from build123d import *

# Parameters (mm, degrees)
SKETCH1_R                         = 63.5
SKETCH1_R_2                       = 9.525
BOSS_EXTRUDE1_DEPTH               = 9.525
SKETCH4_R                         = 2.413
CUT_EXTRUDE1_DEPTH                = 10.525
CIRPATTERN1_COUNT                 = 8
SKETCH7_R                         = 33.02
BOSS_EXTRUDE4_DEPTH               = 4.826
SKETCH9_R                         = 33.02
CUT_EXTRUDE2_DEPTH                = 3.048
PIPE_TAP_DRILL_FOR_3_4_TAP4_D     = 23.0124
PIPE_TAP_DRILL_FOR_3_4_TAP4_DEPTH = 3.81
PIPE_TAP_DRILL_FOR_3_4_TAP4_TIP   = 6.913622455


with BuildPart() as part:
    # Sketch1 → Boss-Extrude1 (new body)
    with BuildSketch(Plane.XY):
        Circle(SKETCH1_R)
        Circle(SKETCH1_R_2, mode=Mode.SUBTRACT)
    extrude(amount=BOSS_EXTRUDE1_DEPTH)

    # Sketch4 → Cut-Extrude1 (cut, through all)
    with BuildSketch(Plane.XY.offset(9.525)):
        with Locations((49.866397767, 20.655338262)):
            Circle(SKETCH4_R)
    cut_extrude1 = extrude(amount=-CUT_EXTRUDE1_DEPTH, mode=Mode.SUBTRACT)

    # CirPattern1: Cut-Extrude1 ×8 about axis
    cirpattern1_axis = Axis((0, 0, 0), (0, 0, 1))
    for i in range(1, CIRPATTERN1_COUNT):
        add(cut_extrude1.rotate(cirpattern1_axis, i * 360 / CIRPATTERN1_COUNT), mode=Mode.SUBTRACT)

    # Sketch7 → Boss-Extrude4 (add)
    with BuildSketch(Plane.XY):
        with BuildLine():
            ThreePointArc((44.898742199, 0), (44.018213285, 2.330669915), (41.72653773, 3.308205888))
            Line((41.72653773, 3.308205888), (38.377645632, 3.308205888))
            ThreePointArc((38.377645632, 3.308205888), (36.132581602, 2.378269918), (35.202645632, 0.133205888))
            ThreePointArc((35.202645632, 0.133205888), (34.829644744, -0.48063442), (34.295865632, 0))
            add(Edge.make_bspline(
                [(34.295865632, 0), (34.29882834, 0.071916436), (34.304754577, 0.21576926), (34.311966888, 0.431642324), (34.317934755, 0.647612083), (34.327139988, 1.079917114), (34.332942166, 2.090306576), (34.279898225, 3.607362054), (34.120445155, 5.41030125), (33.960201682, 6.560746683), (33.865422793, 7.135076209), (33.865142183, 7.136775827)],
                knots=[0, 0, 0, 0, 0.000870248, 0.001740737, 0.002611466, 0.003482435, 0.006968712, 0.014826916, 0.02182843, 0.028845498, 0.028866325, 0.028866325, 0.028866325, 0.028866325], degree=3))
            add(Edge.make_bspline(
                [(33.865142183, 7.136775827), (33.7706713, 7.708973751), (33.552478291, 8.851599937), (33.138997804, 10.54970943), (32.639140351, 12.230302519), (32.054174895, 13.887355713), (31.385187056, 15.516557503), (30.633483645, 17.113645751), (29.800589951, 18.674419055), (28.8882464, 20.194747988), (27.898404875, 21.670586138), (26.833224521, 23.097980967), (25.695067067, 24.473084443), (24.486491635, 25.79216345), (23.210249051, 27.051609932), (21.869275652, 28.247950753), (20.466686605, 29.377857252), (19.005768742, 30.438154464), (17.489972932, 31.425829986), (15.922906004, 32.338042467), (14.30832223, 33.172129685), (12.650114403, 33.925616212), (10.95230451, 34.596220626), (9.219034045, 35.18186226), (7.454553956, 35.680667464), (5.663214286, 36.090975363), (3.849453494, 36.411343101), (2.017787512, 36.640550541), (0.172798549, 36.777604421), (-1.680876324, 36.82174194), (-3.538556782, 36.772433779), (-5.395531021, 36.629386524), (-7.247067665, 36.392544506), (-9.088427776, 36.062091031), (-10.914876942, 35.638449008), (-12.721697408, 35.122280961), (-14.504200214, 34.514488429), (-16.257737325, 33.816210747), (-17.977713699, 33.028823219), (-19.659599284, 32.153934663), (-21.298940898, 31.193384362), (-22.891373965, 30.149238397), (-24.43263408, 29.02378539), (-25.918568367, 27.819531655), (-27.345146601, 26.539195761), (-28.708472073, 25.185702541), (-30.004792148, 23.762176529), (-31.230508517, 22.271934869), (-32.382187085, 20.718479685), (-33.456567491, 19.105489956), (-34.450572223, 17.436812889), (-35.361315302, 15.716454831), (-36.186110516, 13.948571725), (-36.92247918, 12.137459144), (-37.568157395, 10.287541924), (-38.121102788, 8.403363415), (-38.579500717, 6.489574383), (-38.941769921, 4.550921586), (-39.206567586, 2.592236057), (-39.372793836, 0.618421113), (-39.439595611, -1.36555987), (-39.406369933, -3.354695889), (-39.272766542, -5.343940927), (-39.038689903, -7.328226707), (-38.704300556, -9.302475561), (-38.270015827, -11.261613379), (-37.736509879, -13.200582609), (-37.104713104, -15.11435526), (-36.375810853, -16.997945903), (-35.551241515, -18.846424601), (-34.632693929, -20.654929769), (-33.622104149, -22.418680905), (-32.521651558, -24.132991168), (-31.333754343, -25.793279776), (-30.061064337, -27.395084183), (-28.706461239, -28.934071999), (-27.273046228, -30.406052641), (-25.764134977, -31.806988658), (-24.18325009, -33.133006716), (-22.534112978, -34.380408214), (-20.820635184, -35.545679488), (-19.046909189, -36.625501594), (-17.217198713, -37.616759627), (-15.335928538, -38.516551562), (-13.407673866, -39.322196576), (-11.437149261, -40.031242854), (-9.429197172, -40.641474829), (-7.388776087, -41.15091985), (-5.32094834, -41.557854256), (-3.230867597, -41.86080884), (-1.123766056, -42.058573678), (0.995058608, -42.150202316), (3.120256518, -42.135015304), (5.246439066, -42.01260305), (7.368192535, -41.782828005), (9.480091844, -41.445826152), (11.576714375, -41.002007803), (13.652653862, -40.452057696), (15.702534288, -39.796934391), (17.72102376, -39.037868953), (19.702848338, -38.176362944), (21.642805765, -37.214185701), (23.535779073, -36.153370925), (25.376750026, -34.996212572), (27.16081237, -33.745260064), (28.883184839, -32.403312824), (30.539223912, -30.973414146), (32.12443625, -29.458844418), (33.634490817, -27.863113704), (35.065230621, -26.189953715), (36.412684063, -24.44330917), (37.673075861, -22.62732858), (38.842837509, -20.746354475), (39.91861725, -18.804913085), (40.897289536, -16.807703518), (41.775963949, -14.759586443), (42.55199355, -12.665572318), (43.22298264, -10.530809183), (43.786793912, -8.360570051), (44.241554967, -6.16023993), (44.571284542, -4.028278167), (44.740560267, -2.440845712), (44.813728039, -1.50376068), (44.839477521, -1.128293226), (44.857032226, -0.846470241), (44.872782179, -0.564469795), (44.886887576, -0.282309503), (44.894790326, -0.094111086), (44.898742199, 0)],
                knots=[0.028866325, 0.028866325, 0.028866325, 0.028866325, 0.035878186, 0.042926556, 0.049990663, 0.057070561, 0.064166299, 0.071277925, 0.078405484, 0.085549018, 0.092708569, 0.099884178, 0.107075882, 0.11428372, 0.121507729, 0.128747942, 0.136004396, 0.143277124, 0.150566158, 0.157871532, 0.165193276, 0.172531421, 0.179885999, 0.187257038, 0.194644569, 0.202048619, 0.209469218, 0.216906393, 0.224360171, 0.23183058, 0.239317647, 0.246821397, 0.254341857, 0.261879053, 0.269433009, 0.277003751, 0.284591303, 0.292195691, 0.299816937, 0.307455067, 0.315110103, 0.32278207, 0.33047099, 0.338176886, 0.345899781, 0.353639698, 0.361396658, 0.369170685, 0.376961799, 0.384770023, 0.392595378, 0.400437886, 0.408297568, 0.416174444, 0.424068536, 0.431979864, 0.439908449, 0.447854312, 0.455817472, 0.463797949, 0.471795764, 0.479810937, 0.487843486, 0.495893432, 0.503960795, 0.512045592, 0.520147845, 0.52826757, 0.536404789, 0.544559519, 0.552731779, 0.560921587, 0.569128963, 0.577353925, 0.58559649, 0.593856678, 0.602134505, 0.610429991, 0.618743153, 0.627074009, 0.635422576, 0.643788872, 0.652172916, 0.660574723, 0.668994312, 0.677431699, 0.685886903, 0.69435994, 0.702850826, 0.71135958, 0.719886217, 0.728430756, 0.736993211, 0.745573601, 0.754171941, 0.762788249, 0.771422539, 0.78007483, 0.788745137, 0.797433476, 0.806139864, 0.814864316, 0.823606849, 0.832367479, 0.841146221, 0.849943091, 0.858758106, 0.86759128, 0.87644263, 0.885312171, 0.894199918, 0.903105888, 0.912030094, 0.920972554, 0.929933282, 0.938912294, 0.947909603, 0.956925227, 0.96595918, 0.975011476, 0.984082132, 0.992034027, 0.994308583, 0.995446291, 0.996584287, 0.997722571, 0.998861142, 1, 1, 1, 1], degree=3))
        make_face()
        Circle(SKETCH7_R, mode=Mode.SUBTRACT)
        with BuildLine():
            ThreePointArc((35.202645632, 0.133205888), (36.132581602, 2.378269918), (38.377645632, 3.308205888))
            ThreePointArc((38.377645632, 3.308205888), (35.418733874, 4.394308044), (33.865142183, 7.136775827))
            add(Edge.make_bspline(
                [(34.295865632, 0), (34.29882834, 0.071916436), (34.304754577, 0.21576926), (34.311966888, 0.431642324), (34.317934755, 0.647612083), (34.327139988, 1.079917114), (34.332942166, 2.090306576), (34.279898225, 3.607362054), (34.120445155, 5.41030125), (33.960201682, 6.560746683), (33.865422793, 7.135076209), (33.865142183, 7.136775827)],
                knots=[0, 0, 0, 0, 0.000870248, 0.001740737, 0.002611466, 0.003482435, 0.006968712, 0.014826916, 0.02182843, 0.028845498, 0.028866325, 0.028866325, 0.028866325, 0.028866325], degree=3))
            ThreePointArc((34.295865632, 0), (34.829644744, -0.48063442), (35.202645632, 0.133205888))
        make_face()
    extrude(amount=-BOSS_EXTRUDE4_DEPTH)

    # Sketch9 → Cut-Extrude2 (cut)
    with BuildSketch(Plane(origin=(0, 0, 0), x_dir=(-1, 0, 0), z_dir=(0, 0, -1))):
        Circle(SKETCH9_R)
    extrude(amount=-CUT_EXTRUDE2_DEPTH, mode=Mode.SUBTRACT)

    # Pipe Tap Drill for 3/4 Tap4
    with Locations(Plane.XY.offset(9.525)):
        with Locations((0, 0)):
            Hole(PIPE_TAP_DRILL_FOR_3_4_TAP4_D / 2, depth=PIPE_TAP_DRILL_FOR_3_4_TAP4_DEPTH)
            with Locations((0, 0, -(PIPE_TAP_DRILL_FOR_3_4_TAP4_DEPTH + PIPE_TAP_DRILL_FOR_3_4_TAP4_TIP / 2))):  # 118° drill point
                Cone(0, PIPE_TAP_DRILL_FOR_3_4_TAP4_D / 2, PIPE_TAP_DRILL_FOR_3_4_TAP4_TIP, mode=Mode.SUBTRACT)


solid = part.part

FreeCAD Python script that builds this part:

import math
import FreeCAD as App
import Part
import Sketcher
from FreeCAD import Vector
Q = App.Units.Quantity

doc = App.newDocument("Part")
body = doc.addObject("PartDesign::Body", "Body")

# Sketch on XY plane
sketch1 = body.newObject("Sketcher::SketchObject", "Sketch")
sketch1.AttachmentSupport = (doc.getObject("XY_Plane"), [""])
sketch1.MapMode = "FlatFace"
sketch1.addGeometry([
    Part.Circle(Vector(0, 0, 0), Vector(0, 0, 1), 64),
    Part.Circle(Vector(0, 0, 0), Vector(0, 0, 1), 10),
], False)
sketch1.addConstraint([
    Sketcher.Constraint("Coincident", 0, 3, -1, 1),
    Sketcher.Constraint("Coincident", 1, 3, -1, 1),
    Sketcher.Constraint("Diameter", 0, Q("5 in")),
    Sketcher.Constraint("Diameter", 1, Q("0.75 in")),
])
pad1 = body.newObject("PartDesign::Pad", "Pad")
pad1.Profile = sketch1
pad1.Length = Q("0.375 in")

# Sketch on XY plane
sketch2 = body.newObject("Sketcher::SketchObject", "Sketch001")
sketch2.AttachmentSupport = (doc.getObject("XY_Plane"), [""])
sketch2.MapMode = "FlatFace"
sketch2.AttachmentOffset = App.Placement(Vector(0, 0, 0.375 * 25.4), App.Rotation())
sketch2.addGeometry(Part.Circle(Vector(49.9, 20.7, 0), Vector(0, 0, 1), 2.4), False)
sketch2.addConstraint([
    Sketcher.Constraint("Diameter", 0, Q("0.19 in")),
    Sketcher.Constraint("DistanceY", -1, 1, 0, 3, Q("20.655338 mm")),
    Sketcher.Constraint("DistanceX", -1, 1, 0, 3, Q("49.866398 mm")),
])
pocket1 = body.newObject("PartDesign::Pocket", "Pocket")
pocket1.Profile = sketch2
pocket1.Type = "ThroughAll"
doc.recompute()

polarpattern = body.newObject("PartDesign::PolarPattern", "PolarPattern")
polarpattern.Originals = [pocket1]
polarpattern.Axis = (doc.getObject("Z_Axis"), [""])
polarpattern.Angle = 360
polarpattern.Occurrences = 8
body.Tip = polarpattern

# Sketch on XY plane
sketch3 = body.newObject("Sketcher::SketchObject", "Sketch002")
sketch3.AttachmentSupport = (doc.getObject("XY_Plane"), [""])
sketch3.MapMode = "FlatFace"
sketch3.addGeometry([
    Part.ArcOfCircle(Part.Circle(Vector(41.726538, 0.133206, 0), Vector(0, 0, 1), 3.175), math.radians(-2.404528), math.radians(90)),  # 0
    Part.LineSegment(Vector(41.726538, 3.308206, 0), Vector(38.377646, 3.308206, 0)),  # 1
    Part.ArcOfCircle(Part.Circle(Vector(38.377646, 7.881798, 0), Vector(0, 0, 1), 4.573592), math.radians(-170.624939), math.radians(-90)),  # 2
    Part.BSplineCurve([Vector(33.865142, 7.136776, 0), Vector(33.770671, 7.708974, 0), Vector(33.552478, 8.8516, 0), Vector(33.138998, 10.549709, 0), Vector(32.63914, 12.230303, 0), Vector(32.054175, 13.887356, 0), Vector(31.385187, 15.516558, 0), Vector(30.633484, 17.113646, 0), Vector(29.80059, 18.674419, 0), Vector(28.888246, 20.194748, 0), Vector(27.898405, 21.670586, 0), Vector(26.833225, 23.097981, 0), Vector(25.695067, 24.473084, 0), Vector(24.486492, 25.792163, 0), Vector(23.210249, 27.05161, 0), Vector(21.869276, 28.247951, 0), Vector(20.466687, 29.377857, 0), Vector(19.005769, 30.438154, 0), Vector(17.489973, 31.42583, 0), Vector(15.922906, 32.338042, 0), Vector(14.308322, 33.17213, 0), Vector(12.650114, 33.925616, 0), Vector(10.952305, 34.596221, 0), Vector(9.219034, 35.181862, 0), Vector(7.454554, 35.680667, 0), Vector(5.663214, 36.090975, 0), Vector(3.849453, 36.411343, 0), Vector(2.017788, 36.640551, 0), Vector(0.172799, 36.777604, 0), Vector(-1.680876, 36.821742, 0), Vector(-3.538557, 36.772434, 0), Vector(-5.395531, 36.629387, 0), Vector(-7.247068, 36.392545, 0), Vector(-9.088428, 36.062091, 0), Vector(-10.914877, 35.638449, 0), Vector(-12.721697, 35.122281, 0), Vector(-14.5042, 34.514488, 0), Vector(-16.257737, 33.816211, 0), Vector(-17.977714, 33.028823, 0), Vector(-19.659599, 32.153935, 0), Vector(-21.298941, 31.193384, 0), Vector(-22.891374, 30.149238, 0), Vector(-24.432634, 29.023785, 0), Vector(-25.918568, 27.819532, 0), Vector(-27.345147, 26.539196, 0), Vector(-28.708472, 25.185703, 0), Vector(-30.004792, 23.762177, 0), Vector(-31.230509, 22.271935, 0), Vector(-32.382187, 20.71848, 0), Vector(-33.456567, 19.10549, 0), Vector(-34.450572, 17.436813, 0), Vector(-35.361315, 15.716455, 0), Vector(-36.186111, 13.948572, 0), Vector(-36.922479, 12.137459, 0), Vector(-37.568157, 10.287542, 0), Vector(-38.121103, 8.403363, 0), Vector(-38.579501, 6.489574, 0), Vector(-38.94177, 4.550922, 0), Vector(-39.206568, 2.592236, 0), Vector(-39.372794, 0.618421, 0), Vector(-39.439596, -1.36556, 0), Vector(-39.40637, -3.354696, 0), Vector(-39.272767, -5.343941, 0), Vector(-39.03869, -7.328227, 0), Vector(-38.704301, -9.302476, 0), Vector(-38.270016, -11.261613, 0), Vector(-37.73651, -13.200583, 0), Vector(-37.104713, -15.114355, 0), Vector(-36.375811, -16.997946, 0), Vector(-35.551242, -18.846425, 0), Vector(-34.632694, -20.65493, 0), Vector(-33.622104, -22.418681, 0), Vector(-32.521652, -24.132991, 0), Vector(-31.333754, -25.79328, 0), Vector(-30.061064, -27.395084, 0), Vector(-28.706461, -28.934072, 0), Vector(-27.273046, -30.406053, 0), Vector(-25.764135, -31.806989, 0), Vector(-24.18325, -33.133007, 0), Vector(-22.534113, -34.380408, 0), Vector(-20.820635, -35.545679, 0), Vector(-19.046909, -36.625502, 0), Vector(-17.217199, -37.61676, 0), Vector(-15.335929, -38.516552, 0), Vector(-13.407674, -39.322197, 0), Vector(-11.437149, -40.031243, 0), Vector(-9.429197, -40.641475, 0), Vector(-7.388776, -41.15092, 0), Vector(-5.320948, -41.557854, 0), Vector(-3.230868, -41.860809, 0), Vector(-1.123766, -42.058574, 0), Vector(0.995059, -42.150202, 0), Vector(3.120257, -42.135015, 0), Vector(5.246439, -42.012603, 0), Vector(7.368193, -41.782828, 0), Vector(9.480092, -41.445826, 0), Vector(11.576714, -41.002008, 0), Vector(13.652654, -40.452058, 0), Vector(15.702534, -39.796934, 0), Vector(17.721024, -39.037869, 0), Vector(19.702848, -38.176363, 0), Vector(21.642806, -37.214186, 0), Vector(23.535779, -36.153371, 0), Vector(25.37675, -34.996213, 0), Vector(27.160812, -33.74526, 0), Vector(28.883185, -32.403313, 0), Vector(30.539224, -30.973414, 0), Vector(32.124436, -29.458844, 0), Vector(33.634491, -27.863114, 0), Vector(35.065231, -26.189954, 0), Vector(36.412684, -24.443309, 0), Vector(37.673076, -22.627329, 0), Vector(38.842838, -20.746354, 0), Vector(39.918617, -18.804913, 0), Vector(40.89729, -16.807704, 0), Vector(41.775964, -14.759586, 0), Vector(42.551994, -12.665572, 0), Vector(43.222983, -10.530809, 0), Vector(43.786794, -8.36057, 0), Vector(44.241555, -6.16024, 0), Vector(44.571285, -4.028278, 0), Vector(44.74056, -2.440846, 0), Vector(44.813728, -1.503761, 0), Vector(44.839478, -1.128293, 0), Vector(44.857032, -0.84647, 0), Vector(44.872782, -0.56447, 0), Vector(44.886888, -0.28231, 0), Vector(44.89479, -0.094111, 0), Vector(44.898742, 0, 0)], [4, 1, 1, 1, 1, 1, 1, 1, 1, 1, 1, 1, 1, 1, 1, 1, 1, 1, 1, 1, 1, 1, 1, 1, 1, 1, 1, 1, 1, 1, 1, 1, 1, 1, 1, 1, 1, 1, 1, 1, 1, 1, 1, 1, 1, 1, 1, 1, 1, 1, 1, 1, 1, 1, 1, 1, 1, 1, 1, 1, 1, 1, 1, 1, 1, 1, 1, 1, 1, 1, 1, 1, 1, 1, 1, 1, 1, 1, 1, 1, 1, 1, 1, 1, 1, 1, 1, 1, 1, 1, 1, 1, 1, 1, 1, 1, 1, 1, 1, 1, 1, 1, 1, 1, 1, 1, 1, 1, 1, 1, 1, 1, 1, 1, 1, 1, 1, 1, 1, 1, 1, 1, 1, 1, 1, 1, 4], [0.028866325, 0.035878186, 0.042926556, 0.049990663, 0.057070561, 0.064166299, 0.071277925, 0.078405484, 0.085549018, 0.092708569, 0.099884178, 0.107075882, 0.11428372, 0.121507729, 0.128747942, 0.136004396, 0.143277124, 0.150566158, 0.157871532, 0.165193276, 0.172531421, 0.179885999, 0.187257038, 0.194644569, 0.202048619, 0.209469218, 0.216906393, 0.224360171, 0.23183058, 0.239317647, 0.246821397, 0.254341857, 0.261879053, 0.269433009, 0.277003751, 0.284591303, 0.292195691, 0.299816937, 0.307455067, 0.315110103, 0.32278207, 0.33047099, 0.338176886, 0.345899781, 0.353639698, 0.361396658, 0.369170685, 0.376961799, 0.384770023, 0.392595378, 0.400437886, 0.408297568, 0.416174444, 0.424068536, 0.431979864, 0.439908449, 0.447854312, 0.455817472, 0.463797949, 0.471795764, 0.479810937, 0.487843486, 0.495893432, 0.503960795, 0.512045592, 0.520147845, 0.52826757, 0.536404789, 0.544559519, 0.552731779, 0.560921587, 0.569128963, 0.577353925, 0.58559649, 0.593856678, 0.602134505, 0.610429991, 0.618743153, 0.627074009, 0.635422576, 0.643788872, 0.652172916, 0.660574723, 0.668994312, 0.677431699, 0.685886903, 0.69435994, 0.702850826, 0.71135958, 0.719886217, 0.728430756, 0.736993211, 0.745573601, 0.754171941, 0.762788249, 0.771422539, 0.78007483, 0.788745137, 0.797433476, 0.806139864, 0.814864316, 0.823606849, 0.832367479, 0.841146221, 0.849943091, 0.858758106, 0.86759128, 0.87644263, 0.885312171, 0.894199918, 0.903105888, 0.912030094, 0.920972554, 0.929933282, 0.938912294, 0.947909603, 0.956925227, 0.96595918, 0.975011476, 0.984082132, 0.992034027, 0.994308583, 0.995446291, 0.996584287, 0.997722571, 0.998861142, 1], False, 3, [1, 1, 1, 1, 1, 1, 1, 1, 1, 1, 1, 1, 1, 1, 1, 1, 1, 1, 1, 1, 1, 1, 1, 1, 1, 1, 1, 1, 1, 1, 1, 1, 1, 1, 1, 1, 1, 1, 1, 1, 1, 1, 1, 1, 1, 1, 1, 1, 1, 1, 1, 1, 1, 1, 1, 1, 1, 1, 1, 1, 1, 1, 1, 1, 1, 1, 1, 1, 1, 1, 1, 1, 1, 1, 1, 1, 1, 1, 1, 1, 1, 1, 1, 1, 1, 1, 1, 1, 1, 1, 1, 1, 1, 1, 1, 1, 1, 1, 1, 1, 1, 1, 1, 1, 1, 1, 1, 1, 1, 1, 1, 1, 1, 1, 1, 1, 1, 1, 1, 1, 1, 1, 1, 1, 1, 1, 1, 1, 1], False),  # 3
    Part.Circle(Vector(0, 0, 0), Vector(0, 0, 1), 33.02),  # 4
], False)
sketch3.addConstraint([
    Sketcher.Constraint("Block", 3),
    Sketcher.Constraint("Tangent", 0, 2, 1, 1),
    Sketcher.Constraint("Tangent", 1, 2, 2, 2),
    Sketcher.Constraint("Coincident", 2, 1, 3, 1),
    Sketcher.Constraint("Coincident", 3, 2, 0, 1),
    Sketcher.Constraint("Horizontal", 1),
    Sketcher.Constraint("Coincident", 4, 3, -1, 1),
    Sketcher.Constraint("Diameter", 4, Q("2.6 in")),
    Sketcher.Constraint("Radius", 0, Q("0.125 in")),
    Sketcher.Constraint("Radius", 2, Q("4.573592 mm")),
    Sketcher.Constraint("DistanceY", -1, 1, 2, 3, Q("7.881798 mm")),
])
pad2 = body.newObject("PartDesign::Pad", "Pad001")
pad2.Profile = sketch3
pad2.Length = Q("0.19 in")
pad2.Reversed = True

# Sketch on XY plane
sketch4 = body.newObject("Sketcher::SketchObject", "Sketch003")
sketch4.AttachmentSupport = (doc.getObject("XY_Plane"), [""])
sketch4.MapMode = "FlatFace"
sketch4.addGeometry(Part.Circle(Vector(0, 0, 0), Vector(0, 0, 1), 33), False)
sketch4.addConstraint([
    Sketcher.Constraint("Coincident", 0, 3, -1, 1),
    Sketcher.Constraint("Diameter", 0, Q("2.6 in")),
])
pocket2 = body.newObject("PartDesign::Pocket", "Pocket001")
pocket2.Profile = sketch4
pocket2.Length = Q("0.12 in")
pocket2.Reversed = True

# Sketch on XY plane
sketch5 = body.newObject("Sketcher::SketchObject", "Sketch004")
sketch5.AttachmentSupport = (doc.getObject("XY_Plane"), [""])
sketch5.MapMode = "FlatFace"
sketch5.AttachmentOffset = App.Placement(Vector(0, 0, 0.375 * 25.4), App.Rotation())
sketch5.addGeometry(Part.Circle(Vector(0, 0, 0), Vector(0, 0, 1), 12), False)
sketch5.addConstraint([
    Sketcher.Constraint("Coincident", 0, 3, -1, 1),
    Sketcher.Constraint("Diameter", 0, Q("0.906 in")),
])
doc.recompute()
hole = body.newObject("PartDesign::Hole", "Hole")
hole.Profile = sketch5
hole.ThreadType = "None"
hole.Diameter = Q("0.906 in")
hole.DepthType = "Dimension"
hole.Depth = Q("0.15 in")
hole.DrillPoint = "Angled"
hole.DrillPointAngle = 118

doc.recompute()
